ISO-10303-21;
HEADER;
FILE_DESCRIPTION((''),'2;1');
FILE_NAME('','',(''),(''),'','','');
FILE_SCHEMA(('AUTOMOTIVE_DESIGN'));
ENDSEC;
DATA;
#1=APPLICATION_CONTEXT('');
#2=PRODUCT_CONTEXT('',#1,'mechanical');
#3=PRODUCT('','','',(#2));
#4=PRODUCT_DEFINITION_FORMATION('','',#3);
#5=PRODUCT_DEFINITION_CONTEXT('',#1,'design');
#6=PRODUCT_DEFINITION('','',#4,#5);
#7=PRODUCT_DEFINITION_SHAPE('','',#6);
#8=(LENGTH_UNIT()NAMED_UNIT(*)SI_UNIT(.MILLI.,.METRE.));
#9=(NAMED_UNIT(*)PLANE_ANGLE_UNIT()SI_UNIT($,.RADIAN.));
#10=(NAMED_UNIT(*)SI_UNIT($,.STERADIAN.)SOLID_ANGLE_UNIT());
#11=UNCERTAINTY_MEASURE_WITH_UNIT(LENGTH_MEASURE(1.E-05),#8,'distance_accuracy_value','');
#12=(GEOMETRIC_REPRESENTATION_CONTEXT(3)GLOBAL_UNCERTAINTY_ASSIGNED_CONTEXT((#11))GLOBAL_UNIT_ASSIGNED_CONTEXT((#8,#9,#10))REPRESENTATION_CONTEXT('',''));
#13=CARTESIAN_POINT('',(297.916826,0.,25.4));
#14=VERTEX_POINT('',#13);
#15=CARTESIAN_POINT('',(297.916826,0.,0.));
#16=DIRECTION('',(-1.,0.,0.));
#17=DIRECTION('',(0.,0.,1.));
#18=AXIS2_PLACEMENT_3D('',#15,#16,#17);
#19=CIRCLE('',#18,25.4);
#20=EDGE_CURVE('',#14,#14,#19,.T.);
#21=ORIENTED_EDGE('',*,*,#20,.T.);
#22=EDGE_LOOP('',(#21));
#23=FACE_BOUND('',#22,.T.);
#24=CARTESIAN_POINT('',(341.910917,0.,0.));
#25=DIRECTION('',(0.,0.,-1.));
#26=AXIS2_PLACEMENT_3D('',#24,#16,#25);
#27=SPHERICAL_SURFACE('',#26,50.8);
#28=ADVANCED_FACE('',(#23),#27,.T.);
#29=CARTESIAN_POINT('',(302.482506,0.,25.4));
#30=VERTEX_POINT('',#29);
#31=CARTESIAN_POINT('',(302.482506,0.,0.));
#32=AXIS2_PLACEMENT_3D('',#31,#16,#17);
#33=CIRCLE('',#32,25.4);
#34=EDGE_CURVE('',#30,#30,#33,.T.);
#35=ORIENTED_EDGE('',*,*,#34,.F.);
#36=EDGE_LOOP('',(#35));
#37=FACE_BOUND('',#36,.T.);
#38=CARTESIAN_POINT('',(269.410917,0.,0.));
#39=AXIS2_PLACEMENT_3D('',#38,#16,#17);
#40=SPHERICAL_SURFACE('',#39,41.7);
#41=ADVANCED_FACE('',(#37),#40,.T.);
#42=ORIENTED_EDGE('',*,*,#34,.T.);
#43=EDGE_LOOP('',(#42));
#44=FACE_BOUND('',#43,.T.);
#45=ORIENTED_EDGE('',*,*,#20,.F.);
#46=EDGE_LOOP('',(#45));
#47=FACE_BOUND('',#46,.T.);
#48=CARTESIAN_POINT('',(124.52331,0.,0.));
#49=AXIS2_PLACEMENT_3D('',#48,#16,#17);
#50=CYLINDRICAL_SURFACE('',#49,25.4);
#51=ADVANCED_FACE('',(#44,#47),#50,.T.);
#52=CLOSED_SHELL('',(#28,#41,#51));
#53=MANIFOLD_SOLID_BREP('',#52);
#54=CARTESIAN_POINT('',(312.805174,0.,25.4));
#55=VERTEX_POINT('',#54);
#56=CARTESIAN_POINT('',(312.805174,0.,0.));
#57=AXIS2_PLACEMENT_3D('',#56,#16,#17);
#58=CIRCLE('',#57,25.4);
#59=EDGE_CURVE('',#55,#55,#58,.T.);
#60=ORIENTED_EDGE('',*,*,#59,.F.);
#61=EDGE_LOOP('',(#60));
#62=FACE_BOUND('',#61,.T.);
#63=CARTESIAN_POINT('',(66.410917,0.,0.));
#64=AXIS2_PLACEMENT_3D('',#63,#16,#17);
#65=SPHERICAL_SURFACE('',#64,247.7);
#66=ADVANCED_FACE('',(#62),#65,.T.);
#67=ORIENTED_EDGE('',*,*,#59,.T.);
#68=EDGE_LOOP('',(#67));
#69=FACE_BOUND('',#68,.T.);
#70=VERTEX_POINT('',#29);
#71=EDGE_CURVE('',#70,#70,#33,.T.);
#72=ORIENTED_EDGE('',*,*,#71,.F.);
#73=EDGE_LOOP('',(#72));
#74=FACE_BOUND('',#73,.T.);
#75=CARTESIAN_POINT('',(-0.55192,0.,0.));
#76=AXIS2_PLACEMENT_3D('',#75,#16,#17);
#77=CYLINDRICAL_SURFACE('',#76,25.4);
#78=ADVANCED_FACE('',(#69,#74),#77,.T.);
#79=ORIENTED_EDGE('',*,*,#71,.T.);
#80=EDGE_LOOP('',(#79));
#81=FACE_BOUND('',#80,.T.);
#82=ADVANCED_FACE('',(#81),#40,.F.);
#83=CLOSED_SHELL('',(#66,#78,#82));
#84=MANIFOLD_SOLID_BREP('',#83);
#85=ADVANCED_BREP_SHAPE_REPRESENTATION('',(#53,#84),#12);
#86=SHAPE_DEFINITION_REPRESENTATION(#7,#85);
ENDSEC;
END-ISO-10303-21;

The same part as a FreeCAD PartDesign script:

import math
import FreeCAD as App
import Part
import Sketcher

doc = App.newDocument("Part")
body = doc.addObject("PartDesign::Body", "Body")

sketch1 = doc.addObject("Sketcher::SketchObject", "Sketch")
body.addObject(sketch1)
sketch1.AttachmentSupport = (doc.XZ_Plane, [""])
sketch1.MapMode = "FlatFace"
sketch1.addGeometry(Part.ArcOfCircle(Part.Circle(App.Vector(341.9, 0, 0), App.Vector(0, 0, 1), 50.8), math.radians(-180), math.radians(-150)), False)
sketch1.addGeometry(Part.LineSegment(App.Vector(291.1, 0, 0), App.Vector(311.1, 0, 0)), False)
sketch1.addGeometry(Part.ArcOfCircle(Part.Circle(App.Vector(269.4, 0, 0), App.Vector(0, 0, 1), 41.7), math.radians(-38), math.radians(0)), False)
sketch1.addGeometry(Part.LineSegment(App.Vector(302.5, -25.4, 0), App.Vector(297.9, -25.4, 0)), False)
sketch1.addConstraint(Sketcher.Constraint("Coincident", 0, 1, 1, 1))
sketch1.addConstraint(Sketcher.Constraint("Coincident", 1, 2, 2, 2))
sketch1.addConstraint(Sketcher.Constraint("Coincident", 2, 1, 3, 1))
sketch1.addConstraint(Sketcher.Constraint("Coincident", 3, 2, 0, 2))
sketch1.addConstraint(Sketcher.Constraint("Horizontal", 1))
sketch1.addConstraint(Sketcher.Constraint("Horizontal", 3))
sketch1.addConstraint(Sketcher.Constraint("PointOnObject", 0, 3, -1))
sketch1.addConstraint(Sketcher.Constraint("PointOnObject", 2, 3, -1))
sketch1.addConstraint(Sketcher.Constraint("PointOnObject", 0, 1, -1))
sketch1.addConstraint(Sketcher.Constraint("Radius", 0, 50.8))
sketch1.addConstraint(Sketcher.Constraint("Radius", 2, 41.7))
sketch1.addConstraint(Sketcher.Constraint("DistanceX", 1, 1, 1, 2, 20.0))
sketch1.addConstraint(Sketcher.Constraint("DistanceY", 2, 1, -1, 1, 25.4))
sketch1.addConstraint(Sketcher.Constraint("DistanceX", -1, 1, 0, 3, 341.910917))
revolution = doc.addObject("PartDesign::Revolution", "Revolution")
body.addObject(revolution)
revolution.Profile = sketch1
revolution.ReferenceAxis = (sketch1, ["H_Axis"])
revolution.Angle = 360
body2 = doc.addObject("PartDesign::Body", "Body001")

sketch2 = doc.addObject("Sketcher::SketchObject", "Sketch001")
body2.addObject(sketch2)
sketch2.AttachmentSupport = (doc.getObject("XZ_Plane001"), [""])
sketch2.MapMode = "FlatFace"
sketch2.addGeometry(Part.LineSegment(App.Vector(312.8, -25.4, 0), App.Vector(302.5, -25.4, 0)), False)
sketch2.addGeometry(Part.ArcOfCircle(Part.Circle(App.Vector(269.4, 0, 0), App.Vector(0, 0, 1), 41.7), math.radians(-38), math.radians(0)), False)
sketch2.addGeometry(Part.LineSegment(App.Vector(311.1, 0, 0), App.Vector(314.1, 0, 0)), False)
sketch2.addGeometry(Part.ArcOfCircle(Part.Circle(App.Vector(66.4, 0, 0), App.Vector(0, 0, 1), 247.7), math.radians(-5.89), math.radians(0)), False)
sketch2.addConstraint(Sketcher.Constraint("Coincident", 0, 2, 1, 1))
sketch2.addConstraint(Sketcher.Constraint("Coincident", 1, 2, 2, 1))
sketch2.addConstraint(Sketcher.Constraint("Coincident", 2, 2, 3, 2))
sketch2.addConstraint(Sketcher.Constraint("Coincident", 3, 1, 0, 1))
sketch2.addConstraint(Sketcher.Constraint("Horizontal", 0))
sketch2.addConstraint(Sketcher.Constraint("Horizontal", 2))
sketch2.addConstraint(Sketcher.Constraint("PointOnObject", 1, 3, -1))
sketch2.addConstraint(Sketcher.Constraint("PointOnObject", 3, 3, -1))
sketch2.addConstraint(Sketcher.Constraint("PointOnObject", 1, 2, -1))
sketch2.addConstraint(Sketcher.Constraint("Radius", 1, 41.7))
sketch2.addConstraint(Sketcher.Constraint("Radius", 3, 247.7))
sketch2.addConstraint(Sketcher.Constraint("DistanceX", 2, 1, 2, 2, 3.0))
sketch2.addConstraint(Sketcher.Constraint("DistanceY", 0, 2, -1, 1, 25.4))
sketch2.addConstraint(Sketcher.Constraint("DistanceX", -1, 1, 1, 3, 269.410917))
revolution2 = doc.addObject("PartDesign::Revolution", "Revolution001")
body2.addObject(revolution2)
revolution2.Profile = sketch2
revolution2.ReferenceAxis = (sketch2, ["H_Axis"])
revolution2.Angle = 360

doc.recompute()
